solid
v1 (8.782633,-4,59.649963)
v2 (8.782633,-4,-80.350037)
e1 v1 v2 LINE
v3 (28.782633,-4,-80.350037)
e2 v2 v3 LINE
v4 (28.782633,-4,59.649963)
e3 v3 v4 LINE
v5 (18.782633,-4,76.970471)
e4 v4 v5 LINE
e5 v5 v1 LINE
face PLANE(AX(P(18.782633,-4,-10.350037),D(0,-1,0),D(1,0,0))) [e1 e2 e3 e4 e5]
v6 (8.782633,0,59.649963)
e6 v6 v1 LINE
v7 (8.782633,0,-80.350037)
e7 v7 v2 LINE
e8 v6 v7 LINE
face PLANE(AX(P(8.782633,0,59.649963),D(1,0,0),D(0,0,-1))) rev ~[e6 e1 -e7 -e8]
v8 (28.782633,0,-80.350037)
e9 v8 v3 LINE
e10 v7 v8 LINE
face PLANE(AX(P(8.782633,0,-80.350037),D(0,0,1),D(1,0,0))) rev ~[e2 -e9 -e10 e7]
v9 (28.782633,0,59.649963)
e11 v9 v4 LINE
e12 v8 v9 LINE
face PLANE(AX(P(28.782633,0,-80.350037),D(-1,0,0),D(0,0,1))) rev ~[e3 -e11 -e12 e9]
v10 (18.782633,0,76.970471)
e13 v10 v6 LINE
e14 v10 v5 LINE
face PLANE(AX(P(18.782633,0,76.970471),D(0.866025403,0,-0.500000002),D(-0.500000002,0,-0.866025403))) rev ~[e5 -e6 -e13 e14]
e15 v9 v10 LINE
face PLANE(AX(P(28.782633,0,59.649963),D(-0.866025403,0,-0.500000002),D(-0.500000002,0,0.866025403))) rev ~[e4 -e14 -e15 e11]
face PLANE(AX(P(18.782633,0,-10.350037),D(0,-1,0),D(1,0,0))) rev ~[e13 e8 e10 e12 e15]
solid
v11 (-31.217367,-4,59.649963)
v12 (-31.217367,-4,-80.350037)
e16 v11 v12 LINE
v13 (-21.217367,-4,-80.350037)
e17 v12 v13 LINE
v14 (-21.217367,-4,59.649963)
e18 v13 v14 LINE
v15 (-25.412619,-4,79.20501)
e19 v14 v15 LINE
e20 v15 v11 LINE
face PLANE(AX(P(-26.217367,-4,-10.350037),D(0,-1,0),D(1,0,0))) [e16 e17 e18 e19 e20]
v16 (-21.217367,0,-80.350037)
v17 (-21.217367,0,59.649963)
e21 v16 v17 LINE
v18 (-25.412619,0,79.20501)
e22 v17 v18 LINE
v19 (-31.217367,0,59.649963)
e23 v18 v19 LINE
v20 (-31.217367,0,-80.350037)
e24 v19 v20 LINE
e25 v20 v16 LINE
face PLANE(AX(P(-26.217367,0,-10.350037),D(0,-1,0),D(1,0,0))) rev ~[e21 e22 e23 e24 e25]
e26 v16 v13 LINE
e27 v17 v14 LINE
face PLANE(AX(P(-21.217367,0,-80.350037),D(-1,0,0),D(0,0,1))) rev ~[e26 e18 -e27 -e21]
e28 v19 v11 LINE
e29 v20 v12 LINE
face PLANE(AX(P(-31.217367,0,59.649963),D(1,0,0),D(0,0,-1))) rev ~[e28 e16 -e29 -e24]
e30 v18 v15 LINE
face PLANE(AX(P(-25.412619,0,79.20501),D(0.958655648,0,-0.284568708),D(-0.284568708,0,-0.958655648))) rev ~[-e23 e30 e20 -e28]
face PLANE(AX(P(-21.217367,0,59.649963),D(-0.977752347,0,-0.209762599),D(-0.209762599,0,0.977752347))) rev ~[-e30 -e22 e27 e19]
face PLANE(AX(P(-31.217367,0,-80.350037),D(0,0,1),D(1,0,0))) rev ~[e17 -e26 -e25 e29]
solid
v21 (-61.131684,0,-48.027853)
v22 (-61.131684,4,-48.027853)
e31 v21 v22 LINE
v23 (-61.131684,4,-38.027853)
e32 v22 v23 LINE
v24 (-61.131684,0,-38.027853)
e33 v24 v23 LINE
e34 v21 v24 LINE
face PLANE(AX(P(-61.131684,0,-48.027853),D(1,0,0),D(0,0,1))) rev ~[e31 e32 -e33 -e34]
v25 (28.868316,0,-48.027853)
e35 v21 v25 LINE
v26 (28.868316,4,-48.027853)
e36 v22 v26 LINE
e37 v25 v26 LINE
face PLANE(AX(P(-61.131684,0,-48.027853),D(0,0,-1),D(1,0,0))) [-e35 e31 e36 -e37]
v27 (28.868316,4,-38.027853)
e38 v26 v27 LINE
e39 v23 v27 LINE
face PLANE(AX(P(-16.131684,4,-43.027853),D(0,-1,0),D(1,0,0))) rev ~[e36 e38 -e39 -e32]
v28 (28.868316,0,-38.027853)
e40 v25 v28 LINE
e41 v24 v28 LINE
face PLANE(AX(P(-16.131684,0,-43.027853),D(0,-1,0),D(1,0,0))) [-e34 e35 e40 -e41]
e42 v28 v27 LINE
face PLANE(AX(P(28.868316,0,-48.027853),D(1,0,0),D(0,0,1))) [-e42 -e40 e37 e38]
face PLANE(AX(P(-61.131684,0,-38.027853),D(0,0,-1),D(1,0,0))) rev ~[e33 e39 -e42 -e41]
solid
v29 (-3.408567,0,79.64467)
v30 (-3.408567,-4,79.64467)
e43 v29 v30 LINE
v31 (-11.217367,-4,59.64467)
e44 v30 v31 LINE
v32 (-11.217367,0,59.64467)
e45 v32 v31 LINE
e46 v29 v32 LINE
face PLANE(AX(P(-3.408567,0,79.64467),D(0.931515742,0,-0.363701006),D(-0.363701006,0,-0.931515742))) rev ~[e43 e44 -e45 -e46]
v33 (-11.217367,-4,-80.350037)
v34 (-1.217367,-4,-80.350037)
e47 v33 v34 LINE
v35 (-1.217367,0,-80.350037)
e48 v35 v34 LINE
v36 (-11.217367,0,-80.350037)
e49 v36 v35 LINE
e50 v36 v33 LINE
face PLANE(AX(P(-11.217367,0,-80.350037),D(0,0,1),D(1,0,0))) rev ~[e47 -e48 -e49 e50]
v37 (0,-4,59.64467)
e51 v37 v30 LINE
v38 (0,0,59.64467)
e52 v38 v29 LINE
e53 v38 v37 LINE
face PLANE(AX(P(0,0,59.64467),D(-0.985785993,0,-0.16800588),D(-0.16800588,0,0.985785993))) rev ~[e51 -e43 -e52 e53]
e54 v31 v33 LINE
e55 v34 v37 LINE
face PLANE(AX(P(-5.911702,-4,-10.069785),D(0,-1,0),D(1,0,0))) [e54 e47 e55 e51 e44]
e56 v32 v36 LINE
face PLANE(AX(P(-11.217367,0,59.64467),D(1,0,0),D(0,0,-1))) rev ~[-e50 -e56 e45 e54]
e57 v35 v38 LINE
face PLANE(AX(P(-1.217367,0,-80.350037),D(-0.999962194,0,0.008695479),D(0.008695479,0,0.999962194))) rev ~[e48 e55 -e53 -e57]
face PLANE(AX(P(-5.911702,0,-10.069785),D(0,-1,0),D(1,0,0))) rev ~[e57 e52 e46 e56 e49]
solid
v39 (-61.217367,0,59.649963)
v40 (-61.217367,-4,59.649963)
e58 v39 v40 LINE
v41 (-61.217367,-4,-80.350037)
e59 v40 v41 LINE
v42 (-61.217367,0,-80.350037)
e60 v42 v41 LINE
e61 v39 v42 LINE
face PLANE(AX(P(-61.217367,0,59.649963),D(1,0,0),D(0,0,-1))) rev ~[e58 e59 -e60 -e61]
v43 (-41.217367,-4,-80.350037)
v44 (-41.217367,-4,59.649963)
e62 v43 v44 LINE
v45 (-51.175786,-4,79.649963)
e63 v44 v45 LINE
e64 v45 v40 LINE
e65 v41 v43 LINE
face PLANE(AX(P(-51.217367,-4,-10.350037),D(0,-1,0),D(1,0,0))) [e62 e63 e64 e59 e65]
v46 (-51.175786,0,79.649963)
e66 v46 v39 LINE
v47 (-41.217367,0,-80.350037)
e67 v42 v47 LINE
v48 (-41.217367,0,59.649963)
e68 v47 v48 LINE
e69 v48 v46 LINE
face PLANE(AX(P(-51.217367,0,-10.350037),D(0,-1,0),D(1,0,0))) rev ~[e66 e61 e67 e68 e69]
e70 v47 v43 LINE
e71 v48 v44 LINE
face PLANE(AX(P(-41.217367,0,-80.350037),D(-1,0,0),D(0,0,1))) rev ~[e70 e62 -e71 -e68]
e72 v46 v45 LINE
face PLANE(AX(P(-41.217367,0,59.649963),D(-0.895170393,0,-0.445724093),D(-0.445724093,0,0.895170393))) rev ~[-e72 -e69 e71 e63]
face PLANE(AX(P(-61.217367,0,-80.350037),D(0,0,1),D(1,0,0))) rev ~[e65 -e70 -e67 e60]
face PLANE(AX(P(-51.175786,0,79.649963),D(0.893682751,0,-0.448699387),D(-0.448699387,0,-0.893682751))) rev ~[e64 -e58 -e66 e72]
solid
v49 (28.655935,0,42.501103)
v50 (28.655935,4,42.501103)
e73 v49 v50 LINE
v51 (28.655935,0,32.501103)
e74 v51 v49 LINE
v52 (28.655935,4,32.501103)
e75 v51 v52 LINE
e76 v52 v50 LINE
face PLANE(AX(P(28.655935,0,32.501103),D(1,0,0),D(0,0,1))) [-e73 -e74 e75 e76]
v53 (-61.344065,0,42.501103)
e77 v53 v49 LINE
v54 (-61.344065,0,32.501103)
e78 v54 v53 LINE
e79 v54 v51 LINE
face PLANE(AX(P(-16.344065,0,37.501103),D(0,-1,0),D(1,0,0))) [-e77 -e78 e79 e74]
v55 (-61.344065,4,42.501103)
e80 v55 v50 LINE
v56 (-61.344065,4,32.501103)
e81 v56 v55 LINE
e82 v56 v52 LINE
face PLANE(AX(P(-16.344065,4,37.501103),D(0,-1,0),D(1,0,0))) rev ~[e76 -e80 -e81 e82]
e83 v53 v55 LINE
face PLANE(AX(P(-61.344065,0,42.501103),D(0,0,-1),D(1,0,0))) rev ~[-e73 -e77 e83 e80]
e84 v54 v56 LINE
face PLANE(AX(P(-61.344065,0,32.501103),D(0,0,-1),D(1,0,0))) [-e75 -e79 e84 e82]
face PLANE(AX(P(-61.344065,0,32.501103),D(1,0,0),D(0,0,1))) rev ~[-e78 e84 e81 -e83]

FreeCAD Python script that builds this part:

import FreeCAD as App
import Part
import Sketcher
Q = App.Units.Quantity


def add_polygon(sketch, points):
    """Adds a closed chain of lines whose ends are joined by coincident constraints."""
    first, n = sketch.GeometryCount, len(points)
    for a, b in zip(points, points[1:] + points[:1]):
        sketch.addGeometry(Part.LineSegment(App.Vector(*a, 0), App.Vector(*b, 0)), False)
    for i in range(n):
        sketch.addConstraint(Sketcher.Constraint("Coincident", first + i, 2, first + (i + 1) % n, 1))

doc = App.newDocument("Part")
body = doc.addObject("PartDesign::Body", "Body")
body.AllowCompound = True

sketch1 = body.newObject("Sketcher::SketchObject", "Sketch")
sketch1.AttachmentSupport = (doc.getObject("XZ_Plane"), [""])
sketch1.MapMode = "FlatFace"
add_polygon(sketch1, [(8.782633, 59.649963), (8.782633, -80.350037), (28.782633, -80.350037), (28.782633, 59.649963), (18.782633, 76.970471)])
add_polygon(sketch1, [(-11.217367, 59.64467), (-11.217367, -80.350037), (-1.217367, -80.350037), (0, 59.64467), (-3.408567, 79.64467)])
add_polygon(sketch1, [(-61.217367, 59.649963), (-61.217367, -80.350037), (-41.217367, -80.350037), (-41.217367, 59.649963), (-51.175786, 79.649963)])
add_polygon(sketch1, [(-31.217367, 59.649963), (-31.217367, -80.350037), (-21.217367, -80.350037), (-21.217367, 59.649963), (-25.412619, 79.20501)])
sketch1.addConstraint(Sketcher.Constraint("Vertical", 0))
sketch1.addConstraint(Sketcher.Constraint("Horizontal", 1))
sketch1.addConstraint(Sketcher.Constraint("Vertical", 2))
sketch1.addConstraint(Sketcher.Constraint("Vertical", 5))
sketch1.addConstraint(Sketcher.Constraint("Horizontal", 6))
sketch1.addConstraint(Sketcher.Constraint("Vertical", 10))
sketch1.addConstraint(Sketcher.Constraint("Horizontal", 11))
sketch1.addConstraint(Sketcher.Constraint("Vertical", 12))
sketch1.addConstraint(Sketcher.Constraint("Vertical", 15))
sketch1.addConstraint(Sketcher.Constraint("Horizontal", 16))
sketch1.addConstraint(Sketcher.Constraint("Vertical", 17))
sketch1.addConstraint(Sketcher.Constraint("PointOnObject", 7, 2, -2))
sketch1.addConstraint(Sketcher.Constraint("Horizontal", 2, 2, 4, 2))
sketch1.addConstraint(Sketcher.Constraint("Horizontal", 1, 2, 5, 2))
sketch1.addConstraint(Sketcher.Constraint("Horizontal", 7, 2, 9, 2))
sketch1.addConstraint(Sketcher.Constraint("Horizontal", 6, 2, 10, 2))
sketch1.addConstraint(Sketcher.Constraint("Horizontal", 4, 2, 12, 2))
sketch1.addConstraint(Sketcher.Constraint("Horizontal", 12, 2, 14, 2))
sketch1.addConstraint(Sketcher.Constraint("Horizontal", 11, 2, 15, 2))
sketch1.addConstraint(Sketcher.Constraint("Horizontal", 14, 2, 17, 2))
sketch1.addConstraint(Sketcher.Constraint("Horizontal", 17, 2, 19, 2))
sketch1.addConstraint(Sketcher.Constraint("Equal", 1, 11))
sketch1.addConstraint(Sketcher.Constraint("Equal", 6, 16))
sketch1.addConstraint(Sketcher.Constraint("Equal", 3, 4))
sketch1.addConstraint(Sketcher.Constraint("Equal", 4, 18))
sketch1.addConstraint(Sketcher.Constraint("DistanceX", 1, 1, 1, 2, Q("20 mm")))
sketch1.addConstraint(Sketcher.Constraint("DistanceX", 6, 1, 6, 2, Q("10 mm")))
sketch1.addConstraint(Sketcher.Constraint("DistanceY", 0, 2, 0, 1, Q("140 mm")))
sketch1.addConstraint(Sketcher.Constraint("Angle", 3, Q("120 deg")))
sketch1.addConstraint(Sketcher.Constraint("Distance", 7, Q("140 mm")))
sketch1.addConstraint(Sketcher.Constraint("DistanceX", 5, 2, 0, 2, Q("20 mm")))
sketch1.addConstraint(Sketcher.Constraint("DistanceY", 7, 2, 8, 2, Q("20 mm")))
sketch1.addConstraint(Sketcher.Constraint("DistanceX", 10, 2, 5, 2, Q("50 mm")))
sketch1.addConstraint(Sketcher.Constraint("DistanceY", 12, 2, 13, 2, Q("20 mm")))
sketch1.addConstraint(Sketcher.Constraint("DistanceX", 11, 2, 15, 2, Q("10 mm")))
sketch1.addConstraint(Sketcher.Constraint("DistanceX", 8, 2, 3, 2, Q("22.1912 mm")))
sketch1.addConstraint(Sketcher.Constraint("Distance", 8, Q("20.288379 mm")))
sketch1.addConstraint(Sketcher.Constraint("DistanceY", -1, 1, 3, 2, Q("76.970471 mm")))
sketch1.addConstraint(Sketcher.Constraint("DistanceX", 18, 2, -1, 1, Q("25.412619 mm")))
sketch1.addConstraint(Sketcher.Constraint("DistanceX", 13, 2, 12, 2, Q("9.958419 mm")))
pad1 = body.newObject("PartDesign::Pad", "Pad")
pad1.Profile = sketch1
pad1.Length = 4
body2 = doc.addObject("PartDesign::Body", "Body001")

sketch2 = body2.newObject("Sketcher::SketchObject", "Sketch001")
sketch2.AttachmentSupport = (doc.getObject("XZ_Plane001"), [""])
sketch2.MapMode = "FlatFace"
add_polygon(sketch2, [(-61.344065, 42.501103), (-61.344065, 32.501103), (28.655935, 32.501103), (28.655935, 42.501103)])
sketch2.addConstraint(Sketcher.Constraint("Vertical", 0))
sketch2.addConstraint(Sketcher.Constraint("Horizontal", 1))
sketch2.addConstraint(Sketcher.Constraint("Vertical", 2))
sketch2.addConstraint(Sketcher.Constraint("Horizontal", 3))
sketch2.addConstraint(Sketcher.Constraint("DistanceX", 1, 1, 1, 2, Q("90 mm")))
sketch2.addConstraint(Sketcher.Constraint("DistanceY", 0, 2, 0, 1, Q("10 mm")))
sketch2.addConstraint(Sketcher.Constraint("DistanceX", 0, 2, -1, 1, Q("61.344065 mm")))
sketch2.addConstraint(Sketcher.Constraint("DistanceY", -1, 1, 0, 2, Q("32.501103 mm")))
pad2 = body2.newObject("PartDesign::Pad", "Pad001")
pad2.Profile = sketch2
pad2.Length = 4
pad2.Reversed = True
body3 = doc.addObject("PartDesign::Body", "Body002")

sketch3 = body3.newObject("Sketcher::SketchObject", "Sketch002")
sketch3.AttachmentSupport = (doc.getObject("XZ_Plane002"), [""])
sketch3.MapMode = "FlatFace"
add_polygon(sketch3, [(-61.131684, -38.027853), (-61.131684, -48.027853), (28.868316, -48.027853), (28.868316, -38.027853)])
sketch3.addConstraint(Sketcher.Constraint("Vertical", 0))
sketch3.addConstraint(Sketcher.Constraint("Horizontal", 1))
sketch3.addConstraint(Sketcher.Constraint("Vertical", 2))
sketch3.addConstraint(Sketcher.Constraint("Horizontal", 3))
sketch3.addConstraint(Sketcher.Constraint("DistanceX", 1, 1, 1, 2, Q("90 mm")))
sketch3.addConstraint(Sketcher.Constraint("DistanceY", 0, 2, 0, 1, Q("10 mm")))
sketch3.addConstraint(Sketcher.Constraint("DistanceX", 0, 2, -1, 1, Q("61.131684 mm")))
sketch3.addConstraint(Sketcher.Constraint("DistanceY", 0, 2, -1, 1, Q("48.027853 mm")))
pad3 = body3.newObject("PartDesign::Pad", "Pad002")
pad3.Profile = sketch3
pad3.Length = 4
pad3.Reversed = True

doc.recompute()
